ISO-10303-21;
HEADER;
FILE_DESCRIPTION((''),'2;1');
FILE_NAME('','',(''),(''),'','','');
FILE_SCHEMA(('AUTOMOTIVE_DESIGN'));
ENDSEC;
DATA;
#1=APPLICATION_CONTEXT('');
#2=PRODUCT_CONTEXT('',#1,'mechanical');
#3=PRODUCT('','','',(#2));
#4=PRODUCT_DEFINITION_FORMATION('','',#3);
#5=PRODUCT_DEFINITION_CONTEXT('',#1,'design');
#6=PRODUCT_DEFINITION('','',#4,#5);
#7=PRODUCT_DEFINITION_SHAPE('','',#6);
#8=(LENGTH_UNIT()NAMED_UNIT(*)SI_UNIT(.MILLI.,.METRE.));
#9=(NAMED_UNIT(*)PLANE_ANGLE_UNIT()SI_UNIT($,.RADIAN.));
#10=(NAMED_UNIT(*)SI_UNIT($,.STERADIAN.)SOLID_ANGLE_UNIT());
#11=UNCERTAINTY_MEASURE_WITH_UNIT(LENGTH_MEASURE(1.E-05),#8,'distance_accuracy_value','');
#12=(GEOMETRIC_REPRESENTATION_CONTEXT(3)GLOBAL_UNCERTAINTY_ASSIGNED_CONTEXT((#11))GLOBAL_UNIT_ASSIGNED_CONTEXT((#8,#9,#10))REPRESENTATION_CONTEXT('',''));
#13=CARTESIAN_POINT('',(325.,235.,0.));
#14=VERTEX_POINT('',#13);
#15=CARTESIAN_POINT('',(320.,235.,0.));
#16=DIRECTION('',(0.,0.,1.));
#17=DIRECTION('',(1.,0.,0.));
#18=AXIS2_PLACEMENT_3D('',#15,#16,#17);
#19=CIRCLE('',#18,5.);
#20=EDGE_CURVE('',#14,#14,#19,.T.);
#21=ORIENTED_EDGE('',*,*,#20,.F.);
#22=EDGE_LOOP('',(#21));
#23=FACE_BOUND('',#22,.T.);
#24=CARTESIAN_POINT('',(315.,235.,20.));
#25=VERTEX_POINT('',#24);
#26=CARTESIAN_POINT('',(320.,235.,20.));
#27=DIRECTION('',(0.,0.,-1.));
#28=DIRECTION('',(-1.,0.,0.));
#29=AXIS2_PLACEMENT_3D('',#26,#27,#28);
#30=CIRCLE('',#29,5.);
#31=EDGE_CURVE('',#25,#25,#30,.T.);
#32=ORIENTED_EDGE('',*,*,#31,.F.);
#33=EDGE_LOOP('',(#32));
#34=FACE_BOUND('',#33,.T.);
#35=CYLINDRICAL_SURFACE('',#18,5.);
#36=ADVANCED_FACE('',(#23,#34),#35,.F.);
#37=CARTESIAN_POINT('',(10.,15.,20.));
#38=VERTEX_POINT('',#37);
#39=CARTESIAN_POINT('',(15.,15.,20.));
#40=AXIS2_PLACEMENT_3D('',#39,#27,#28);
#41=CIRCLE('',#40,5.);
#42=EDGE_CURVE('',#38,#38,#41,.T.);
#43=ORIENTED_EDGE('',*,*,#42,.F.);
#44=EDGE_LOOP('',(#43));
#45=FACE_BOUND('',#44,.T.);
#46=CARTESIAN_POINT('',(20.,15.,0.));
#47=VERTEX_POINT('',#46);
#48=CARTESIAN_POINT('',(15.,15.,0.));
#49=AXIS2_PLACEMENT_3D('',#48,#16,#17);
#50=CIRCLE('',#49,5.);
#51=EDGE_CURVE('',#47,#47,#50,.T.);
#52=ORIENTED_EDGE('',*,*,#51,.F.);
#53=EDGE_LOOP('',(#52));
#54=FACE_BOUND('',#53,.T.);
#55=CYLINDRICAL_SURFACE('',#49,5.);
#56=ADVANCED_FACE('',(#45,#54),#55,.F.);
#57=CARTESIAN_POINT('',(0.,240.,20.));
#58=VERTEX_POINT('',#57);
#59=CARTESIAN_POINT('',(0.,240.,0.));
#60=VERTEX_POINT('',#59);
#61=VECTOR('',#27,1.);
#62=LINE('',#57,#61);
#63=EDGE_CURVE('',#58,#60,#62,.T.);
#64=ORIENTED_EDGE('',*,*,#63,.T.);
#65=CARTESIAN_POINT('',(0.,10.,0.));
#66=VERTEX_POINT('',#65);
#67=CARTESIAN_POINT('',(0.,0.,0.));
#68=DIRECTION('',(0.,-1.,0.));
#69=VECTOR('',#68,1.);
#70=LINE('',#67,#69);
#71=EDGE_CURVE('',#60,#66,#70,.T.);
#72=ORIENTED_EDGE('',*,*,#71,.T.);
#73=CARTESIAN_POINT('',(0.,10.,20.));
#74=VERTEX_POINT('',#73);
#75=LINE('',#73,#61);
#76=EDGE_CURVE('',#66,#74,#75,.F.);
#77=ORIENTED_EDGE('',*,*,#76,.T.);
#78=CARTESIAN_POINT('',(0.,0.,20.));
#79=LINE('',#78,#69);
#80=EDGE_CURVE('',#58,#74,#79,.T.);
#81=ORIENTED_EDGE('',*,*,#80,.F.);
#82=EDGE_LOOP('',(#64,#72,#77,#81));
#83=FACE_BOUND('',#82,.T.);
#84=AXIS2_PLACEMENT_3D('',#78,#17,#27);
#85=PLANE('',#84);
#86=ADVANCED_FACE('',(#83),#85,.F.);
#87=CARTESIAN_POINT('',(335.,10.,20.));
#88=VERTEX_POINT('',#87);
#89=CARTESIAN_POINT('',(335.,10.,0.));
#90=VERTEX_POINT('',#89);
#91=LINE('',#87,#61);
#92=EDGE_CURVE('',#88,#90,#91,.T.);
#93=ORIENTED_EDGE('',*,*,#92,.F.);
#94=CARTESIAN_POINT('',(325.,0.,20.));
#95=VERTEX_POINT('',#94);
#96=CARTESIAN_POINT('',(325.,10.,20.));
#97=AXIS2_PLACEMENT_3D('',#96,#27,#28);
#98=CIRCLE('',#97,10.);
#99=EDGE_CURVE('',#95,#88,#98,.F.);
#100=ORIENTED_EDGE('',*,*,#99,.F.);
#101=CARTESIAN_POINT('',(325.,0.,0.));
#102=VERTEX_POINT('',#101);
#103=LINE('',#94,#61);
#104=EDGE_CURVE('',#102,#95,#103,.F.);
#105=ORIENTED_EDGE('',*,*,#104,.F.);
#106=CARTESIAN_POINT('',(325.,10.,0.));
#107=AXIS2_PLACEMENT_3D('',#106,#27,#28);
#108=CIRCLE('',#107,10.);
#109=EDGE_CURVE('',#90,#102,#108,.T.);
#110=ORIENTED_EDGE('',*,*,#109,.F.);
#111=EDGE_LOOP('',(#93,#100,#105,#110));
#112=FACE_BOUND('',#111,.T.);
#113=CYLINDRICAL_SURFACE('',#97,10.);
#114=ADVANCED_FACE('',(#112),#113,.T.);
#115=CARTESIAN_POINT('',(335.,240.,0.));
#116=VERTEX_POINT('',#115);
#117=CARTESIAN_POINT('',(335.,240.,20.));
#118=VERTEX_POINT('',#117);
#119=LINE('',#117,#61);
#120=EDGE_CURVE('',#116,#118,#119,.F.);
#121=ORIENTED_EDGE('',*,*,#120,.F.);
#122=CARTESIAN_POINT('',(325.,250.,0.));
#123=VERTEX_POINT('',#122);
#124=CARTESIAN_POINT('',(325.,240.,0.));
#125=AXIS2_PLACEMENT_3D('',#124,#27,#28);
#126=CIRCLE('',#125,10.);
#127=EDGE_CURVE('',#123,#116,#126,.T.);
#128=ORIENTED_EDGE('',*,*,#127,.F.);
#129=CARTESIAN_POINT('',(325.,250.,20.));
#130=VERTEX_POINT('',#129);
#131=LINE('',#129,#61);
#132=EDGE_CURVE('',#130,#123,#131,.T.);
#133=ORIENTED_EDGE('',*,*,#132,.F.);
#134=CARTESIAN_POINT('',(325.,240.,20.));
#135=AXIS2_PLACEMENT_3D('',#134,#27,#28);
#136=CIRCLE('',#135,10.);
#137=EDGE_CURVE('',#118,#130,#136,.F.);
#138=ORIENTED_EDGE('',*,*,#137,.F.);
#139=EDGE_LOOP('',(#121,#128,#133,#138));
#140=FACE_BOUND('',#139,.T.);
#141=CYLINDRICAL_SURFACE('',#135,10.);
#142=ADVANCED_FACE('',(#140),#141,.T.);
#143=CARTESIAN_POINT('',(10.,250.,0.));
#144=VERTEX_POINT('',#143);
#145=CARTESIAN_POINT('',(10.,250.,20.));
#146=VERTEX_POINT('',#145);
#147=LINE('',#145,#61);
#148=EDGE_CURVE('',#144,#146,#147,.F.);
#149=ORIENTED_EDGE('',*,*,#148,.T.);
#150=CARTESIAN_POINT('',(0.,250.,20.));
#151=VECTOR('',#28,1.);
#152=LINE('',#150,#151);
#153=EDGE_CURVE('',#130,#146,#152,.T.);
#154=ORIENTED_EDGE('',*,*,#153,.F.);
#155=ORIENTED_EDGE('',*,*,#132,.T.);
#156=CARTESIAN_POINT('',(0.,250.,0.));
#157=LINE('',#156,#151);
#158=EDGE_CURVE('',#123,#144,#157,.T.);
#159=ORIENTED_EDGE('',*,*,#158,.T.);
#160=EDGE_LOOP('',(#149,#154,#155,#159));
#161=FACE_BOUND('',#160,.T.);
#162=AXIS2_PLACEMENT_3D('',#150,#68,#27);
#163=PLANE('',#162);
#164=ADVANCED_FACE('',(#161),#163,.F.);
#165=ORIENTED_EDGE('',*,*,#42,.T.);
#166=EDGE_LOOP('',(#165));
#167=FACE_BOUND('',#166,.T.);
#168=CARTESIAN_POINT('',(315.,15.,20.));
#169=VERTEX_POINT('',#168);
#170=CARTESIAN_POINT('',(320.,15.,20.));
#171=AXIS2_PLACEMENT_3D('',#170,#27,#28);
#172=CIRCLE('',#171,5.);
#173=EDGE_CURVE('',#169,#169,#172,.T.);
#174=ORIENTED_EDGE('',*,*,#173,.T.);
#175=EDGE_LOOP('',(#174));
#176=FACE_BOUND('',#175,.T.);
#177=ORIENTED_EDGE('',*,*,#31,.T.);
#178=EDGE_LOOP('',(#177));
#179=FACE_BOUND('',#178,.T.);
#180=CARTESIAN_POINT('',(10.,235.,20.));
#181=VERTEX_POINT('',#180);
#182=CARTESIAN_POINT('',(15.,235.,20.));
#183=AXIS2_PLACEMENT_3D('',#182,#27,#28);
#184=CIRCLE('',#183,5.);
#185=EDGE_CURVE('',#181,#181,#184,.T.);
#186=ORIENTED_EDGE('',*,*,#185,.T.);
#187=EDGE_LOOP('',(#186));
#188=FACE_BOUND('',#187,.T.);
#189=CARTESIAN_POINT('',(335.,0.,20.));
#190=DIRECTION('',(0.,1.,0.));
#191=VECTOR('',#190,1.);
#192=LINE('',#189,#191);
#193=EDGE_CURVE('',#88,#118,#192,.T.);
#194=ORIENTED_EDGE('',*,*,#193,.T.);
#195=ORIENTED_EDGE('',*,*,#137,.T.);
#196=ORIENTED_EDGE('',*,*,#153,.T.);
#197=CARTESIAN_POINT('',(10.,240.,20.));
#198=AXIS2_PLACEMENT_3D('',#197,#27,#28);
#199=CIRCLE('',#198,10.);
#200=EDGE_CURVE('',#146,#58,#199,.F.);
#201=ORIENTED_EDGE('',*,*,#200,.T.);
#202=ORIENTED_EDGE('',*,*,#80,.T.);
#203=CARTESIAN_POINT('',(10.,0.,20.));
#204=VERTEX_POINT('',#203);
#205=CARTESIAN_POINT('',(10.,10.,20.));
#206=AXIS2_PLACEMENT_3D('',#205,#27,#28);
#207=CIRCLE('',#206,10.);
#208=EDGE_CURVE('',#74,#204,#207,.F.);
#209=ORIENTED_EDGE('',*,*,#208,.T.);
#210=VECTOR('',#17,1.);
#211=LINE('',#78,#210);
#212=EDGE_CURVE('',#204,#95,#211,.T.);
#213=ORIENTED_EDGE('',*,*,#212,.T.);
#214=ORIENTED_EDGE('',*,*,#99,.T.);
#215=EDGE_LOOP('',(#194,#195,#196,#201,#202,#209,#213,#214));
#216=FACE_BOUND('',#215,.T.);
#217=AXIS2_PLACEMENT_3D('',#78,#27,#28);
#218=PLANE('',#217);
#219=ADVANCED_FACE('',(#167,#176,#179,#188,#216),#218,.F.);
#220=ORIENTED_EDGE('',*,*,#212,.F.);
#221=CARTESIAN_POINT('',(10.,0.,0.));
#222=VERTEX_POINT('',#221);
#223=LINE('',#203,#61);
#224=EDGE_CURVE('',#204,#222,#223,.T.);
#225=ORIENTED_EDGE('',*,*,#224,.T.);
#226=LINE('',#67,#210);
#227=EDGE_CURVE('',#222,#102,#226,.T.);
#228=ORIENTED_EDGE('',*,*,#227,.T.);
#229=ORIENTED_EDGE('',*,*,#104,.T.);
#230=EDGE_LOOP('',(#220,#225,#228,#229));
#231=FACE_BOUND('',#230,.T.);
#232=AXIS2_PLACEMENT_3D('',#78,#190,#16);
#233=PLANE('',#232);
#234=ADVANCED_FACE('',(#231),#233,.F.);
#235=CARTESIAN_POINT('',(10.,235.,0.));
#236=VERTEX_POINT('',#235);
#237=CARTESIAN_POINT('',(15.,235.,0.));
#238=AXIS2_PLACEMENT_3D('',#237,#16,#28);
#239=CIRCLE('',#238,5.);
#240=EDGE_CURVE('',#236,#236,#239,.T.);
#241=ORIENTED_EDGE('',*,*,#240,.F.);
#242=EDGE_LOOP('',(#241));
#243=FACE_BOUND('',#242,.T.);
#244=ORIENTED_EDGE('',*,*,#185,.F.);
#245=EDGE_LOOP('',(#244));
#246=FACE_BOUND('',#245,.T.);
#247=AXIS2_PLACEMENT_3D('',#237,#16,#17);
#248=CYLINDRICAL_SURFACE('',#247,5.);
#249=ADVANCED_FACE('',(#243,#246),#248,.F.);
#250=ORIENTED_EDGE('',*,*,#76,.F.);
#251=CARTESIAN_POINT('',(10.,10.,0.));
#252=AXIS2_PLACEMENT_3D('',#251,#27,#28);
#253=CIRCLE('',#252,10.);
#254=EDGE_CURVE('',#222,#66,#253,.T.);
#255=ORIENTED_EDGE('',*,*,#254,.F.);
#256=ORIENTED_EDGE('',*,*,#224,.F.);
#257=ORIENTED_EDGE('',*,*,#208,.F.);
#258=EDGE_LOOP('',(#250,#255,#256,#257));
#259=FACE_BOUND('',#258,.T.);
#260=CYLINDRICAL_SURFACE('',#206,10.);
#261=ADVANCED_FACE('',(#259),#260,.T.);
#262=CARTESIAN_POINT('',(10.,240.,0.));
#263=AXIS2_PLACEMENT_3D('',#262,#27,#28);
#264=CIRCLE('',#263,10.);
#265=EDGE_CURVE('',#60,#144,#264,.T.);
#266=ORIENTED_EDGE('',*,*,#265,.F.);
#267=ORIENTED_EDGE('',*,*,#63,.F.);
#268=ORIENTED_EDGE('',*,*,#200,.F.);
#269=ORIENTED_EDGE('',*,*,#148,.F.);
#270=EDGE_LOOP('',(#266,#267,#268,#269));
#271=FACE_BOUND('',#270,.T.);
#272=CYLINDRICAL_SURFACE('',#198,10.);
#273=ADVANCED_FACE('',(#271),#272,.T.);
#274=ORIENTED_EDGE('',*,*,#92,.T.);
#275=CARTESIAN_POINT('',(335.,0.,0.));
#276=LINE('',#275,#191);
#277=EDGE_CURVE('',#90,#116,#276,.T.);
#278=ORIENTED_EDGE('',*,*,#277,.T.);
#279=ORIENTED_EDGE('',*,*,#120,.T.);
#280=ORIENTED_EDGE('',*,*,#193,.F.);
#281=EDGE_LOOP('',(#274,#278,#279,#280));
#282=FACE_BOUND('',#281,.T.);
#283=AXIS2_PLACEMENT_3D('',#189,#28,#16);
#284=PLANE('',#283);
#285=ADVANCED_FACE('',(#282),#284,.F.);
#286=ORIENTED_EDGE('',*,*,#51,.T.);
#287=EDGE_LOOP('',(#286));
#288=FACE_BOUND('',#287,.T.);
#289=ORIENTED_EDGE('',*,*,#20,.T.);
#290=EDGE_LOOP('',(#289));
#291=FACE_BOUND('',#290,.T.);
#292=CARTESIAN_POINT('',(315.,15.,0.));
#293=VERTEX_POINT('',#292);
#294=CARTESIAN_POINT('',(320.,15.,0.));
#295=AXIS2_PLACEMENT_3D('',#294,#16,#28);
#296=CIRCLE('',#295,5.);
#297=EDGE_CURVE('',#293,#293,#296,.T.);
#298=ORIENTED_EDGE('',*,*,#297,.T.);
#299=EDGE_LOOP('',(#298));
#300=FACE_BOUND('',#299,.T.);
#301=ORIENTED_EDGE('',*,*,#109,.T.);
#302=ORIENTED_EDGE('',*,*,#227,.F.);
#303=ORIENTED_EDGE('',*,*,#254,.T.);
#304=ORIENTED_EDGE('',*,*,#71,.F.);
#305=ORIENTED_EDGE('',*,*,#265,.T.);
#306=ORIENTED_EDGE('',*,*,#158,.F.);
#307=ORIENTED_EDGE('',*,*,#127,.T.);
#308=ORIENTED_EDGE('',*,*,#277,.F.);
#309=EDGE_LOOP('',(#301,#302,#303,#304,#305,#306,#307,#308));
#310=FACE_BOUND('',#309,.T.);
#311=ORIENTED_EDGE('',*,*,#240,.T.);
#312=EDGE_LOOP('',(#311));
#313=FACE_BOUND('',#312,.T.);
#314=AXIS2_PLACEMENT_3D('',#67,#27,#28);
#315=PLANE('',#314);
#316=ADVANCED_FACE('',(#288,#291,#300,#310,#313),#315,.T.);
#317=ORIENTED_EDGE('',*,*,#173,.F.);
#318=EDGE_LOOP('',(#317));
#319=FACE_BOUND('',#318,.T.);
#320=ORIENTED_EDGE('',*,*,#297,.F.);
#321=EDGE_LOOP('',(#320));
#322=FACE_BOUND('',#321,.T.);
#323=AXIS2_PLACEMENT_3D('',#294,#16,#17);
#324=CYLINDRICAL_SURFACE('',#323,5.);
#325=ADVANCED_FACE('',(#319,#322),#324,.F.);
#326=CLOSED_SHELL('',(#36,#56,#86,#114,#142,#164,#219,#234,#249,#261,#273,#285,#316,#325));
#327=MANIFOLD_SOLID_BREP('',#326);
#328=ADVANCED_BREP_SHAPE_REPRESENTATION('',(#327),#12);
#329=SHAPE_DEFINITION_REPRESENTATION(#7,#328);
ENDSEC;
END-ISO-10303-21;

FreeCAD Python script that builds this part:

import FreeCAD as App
import Part
import Sketcher
from FreeCAD import Vector


def edges_at(feature, points):
    """Names of the edges that pass closest to the given points."""
    edges = feature.Shape.Edges
    near = lambda p: min(range(len(edges)), key=lambda i: edges[i].distToShape(Part.Vertex(*p))[0])
    return sorted({f"Edge{near(p) + 1}" for p in points})

doc = App.newDocument("Part")
body = doc.addObject("PartDesign::Body", "Body")

sketch1 = doc.addObject("Sketcher::SketchObject", "Sketch")
body.addObject(sketch1)
sketch1.AttachmentSupport = (doc.XY_Plane, [""])
sketch1.MapMode = "FlatFace"
sketch1.addGeometry(Part.LineSegment(Vector(0, 250, 0), Vector(0, 0, 0)), False)
sketch1.addGeometry(Part.LineSegment(Vector(0, 0, 0), Vector(335, 0, 0)), False)
sketch1.addGeometry(Part.LineSegment(Vector(335, 0, 0), Vector(335, 250, 0)), False)
sketch1.addGeometry(Part.LineSegment(Vector(335, 250, 0), Vector(0, 250, 0)), False)
sketch1.addConstraint(Sketcher.Constraint("Coincident", 0, 2, 1, 1))
sketch1.addConstraint(Sketcher.Constraint("Coincident", 1, 2, 2, 1))
sketch1.addConstraint(Sketcher.Constraint("Coincident", 2, 2, 3, 1))
sketch1.addConstraint(Sketcher.Constraint("Coincident", 3, 2, 0, 1))
sketch1.addConstraint(Sketcher.Constraint("Vertical", 0))
sketch1.addConstraint(Sketcher.Constraint("Horizontal", 1))
sketch1.addConstraint(Sketcher.Constraint("Vertical", 2))
sketch1.addConstraint(Sketcher.Constraint("Horizontal", 3))
sketch1.addConstraint(Sketcher.Constraint("Coincident", 0, 2, -1, 1))
sketch1.addConstraint(Sketcher.Constraint("DistanceX", 1, 1, 1, 2, 335.0))
sketch1.addConstraint(Sketcher.Constraint("DistanceY", 0, 2, 0, 1, 250.0))
pad1 = doc.addObject("PartDesign::Pad", "Pad")
body.addObject(pad1)
pad1.Profile = sketch1
pad1.Length = 20

sketch2 = doc.addObject("Sketcher::SketchObject", "Sketch001")
body.addObject(sketch2)
sketch2.AttachmentSupport = (doc.XY_Plane, [""])
sketch2.MapMode = "FlatFace"
sketch2.AttachmentOffset = App.Placement(Vector(0, 0, 20), App.Rotation())
sketch2.addGeometry(Part.Circle(Vector(15, 15, 0), Vector(0, 0, 1), 5), False)
sketch2.addGeometry(Part.Circle(Vector(320, 15, 0), Vector(0, 0, 1), 5), False)
sketch2.addGeometry(Part.Circle(Vector(320, 235, 0), Vector(0, 0, 1), 5), False)
sketch2.addGeometry(Part.Circle(Vector(15, 235, 0), Vector(0, 0, 1), 5), False)
sketch2.addConstraint(Sketcher.Constraint("Equal", 0, 1))
sketch2.addConstraint(Sketcher.Constraint("Equal", 1, 2))
sketch2.addConstraint(Sketcher.Constraint("Equal", 2, 3))
sketch2.addConstraint(Sketcher.Constraint("Horizontal", 0, 3, 1, 3))
sketch2.addConstraint(Sketcher.Constraint("Horizontal", 2, 3, 3, 3))
sketch2.addConstraint(Sketcher.Constraint("Vertical", 1, 3, 2, 3))
sketch2.addConstraint(Sketcher.Constraint("Vertical", 0, 3, 3, 3))
sketch2.addConstraint(Sketcher.Constraint("Diameter", 0, 10.0))
sketch2.addConstraint(Sketcher.Constraint("DistanceX", -1, 1, 0, 3, 15.0))
sketch2.addConstraint(Sketcher.Constraint("DistanceY", -1, 1, 0, 3, 15.0))
sketch2.addConstraint(Sketcher.Constraint("DistanceX", -1, 1, 1, 3, 320.0))
sketch2.addConstraint(Sketcher.Constraint("DistanceY", -1, 1, 2, 3, 235.0))
pocket1 = doc.addObject("PartDesign::Pocket", "Pocket")
body.addObject(pocket1)
pocket1.Profile = sketch2
pocket1.Type = "ThroughAll"
pocket1.Midplane = True
doc.recompute()

fillet = doc.addObject("PartDesign::Fillet", "Fillet")
body.addObject(fillet)
fillet.Base = (pocket1, edges_at(pocket1, [
    (0, 250, 10),
    (335, 250, 10),
    (335, 0, 10),
    (0, 0, 10),
]))
fillet.Radius = 10

doc.recompute()
